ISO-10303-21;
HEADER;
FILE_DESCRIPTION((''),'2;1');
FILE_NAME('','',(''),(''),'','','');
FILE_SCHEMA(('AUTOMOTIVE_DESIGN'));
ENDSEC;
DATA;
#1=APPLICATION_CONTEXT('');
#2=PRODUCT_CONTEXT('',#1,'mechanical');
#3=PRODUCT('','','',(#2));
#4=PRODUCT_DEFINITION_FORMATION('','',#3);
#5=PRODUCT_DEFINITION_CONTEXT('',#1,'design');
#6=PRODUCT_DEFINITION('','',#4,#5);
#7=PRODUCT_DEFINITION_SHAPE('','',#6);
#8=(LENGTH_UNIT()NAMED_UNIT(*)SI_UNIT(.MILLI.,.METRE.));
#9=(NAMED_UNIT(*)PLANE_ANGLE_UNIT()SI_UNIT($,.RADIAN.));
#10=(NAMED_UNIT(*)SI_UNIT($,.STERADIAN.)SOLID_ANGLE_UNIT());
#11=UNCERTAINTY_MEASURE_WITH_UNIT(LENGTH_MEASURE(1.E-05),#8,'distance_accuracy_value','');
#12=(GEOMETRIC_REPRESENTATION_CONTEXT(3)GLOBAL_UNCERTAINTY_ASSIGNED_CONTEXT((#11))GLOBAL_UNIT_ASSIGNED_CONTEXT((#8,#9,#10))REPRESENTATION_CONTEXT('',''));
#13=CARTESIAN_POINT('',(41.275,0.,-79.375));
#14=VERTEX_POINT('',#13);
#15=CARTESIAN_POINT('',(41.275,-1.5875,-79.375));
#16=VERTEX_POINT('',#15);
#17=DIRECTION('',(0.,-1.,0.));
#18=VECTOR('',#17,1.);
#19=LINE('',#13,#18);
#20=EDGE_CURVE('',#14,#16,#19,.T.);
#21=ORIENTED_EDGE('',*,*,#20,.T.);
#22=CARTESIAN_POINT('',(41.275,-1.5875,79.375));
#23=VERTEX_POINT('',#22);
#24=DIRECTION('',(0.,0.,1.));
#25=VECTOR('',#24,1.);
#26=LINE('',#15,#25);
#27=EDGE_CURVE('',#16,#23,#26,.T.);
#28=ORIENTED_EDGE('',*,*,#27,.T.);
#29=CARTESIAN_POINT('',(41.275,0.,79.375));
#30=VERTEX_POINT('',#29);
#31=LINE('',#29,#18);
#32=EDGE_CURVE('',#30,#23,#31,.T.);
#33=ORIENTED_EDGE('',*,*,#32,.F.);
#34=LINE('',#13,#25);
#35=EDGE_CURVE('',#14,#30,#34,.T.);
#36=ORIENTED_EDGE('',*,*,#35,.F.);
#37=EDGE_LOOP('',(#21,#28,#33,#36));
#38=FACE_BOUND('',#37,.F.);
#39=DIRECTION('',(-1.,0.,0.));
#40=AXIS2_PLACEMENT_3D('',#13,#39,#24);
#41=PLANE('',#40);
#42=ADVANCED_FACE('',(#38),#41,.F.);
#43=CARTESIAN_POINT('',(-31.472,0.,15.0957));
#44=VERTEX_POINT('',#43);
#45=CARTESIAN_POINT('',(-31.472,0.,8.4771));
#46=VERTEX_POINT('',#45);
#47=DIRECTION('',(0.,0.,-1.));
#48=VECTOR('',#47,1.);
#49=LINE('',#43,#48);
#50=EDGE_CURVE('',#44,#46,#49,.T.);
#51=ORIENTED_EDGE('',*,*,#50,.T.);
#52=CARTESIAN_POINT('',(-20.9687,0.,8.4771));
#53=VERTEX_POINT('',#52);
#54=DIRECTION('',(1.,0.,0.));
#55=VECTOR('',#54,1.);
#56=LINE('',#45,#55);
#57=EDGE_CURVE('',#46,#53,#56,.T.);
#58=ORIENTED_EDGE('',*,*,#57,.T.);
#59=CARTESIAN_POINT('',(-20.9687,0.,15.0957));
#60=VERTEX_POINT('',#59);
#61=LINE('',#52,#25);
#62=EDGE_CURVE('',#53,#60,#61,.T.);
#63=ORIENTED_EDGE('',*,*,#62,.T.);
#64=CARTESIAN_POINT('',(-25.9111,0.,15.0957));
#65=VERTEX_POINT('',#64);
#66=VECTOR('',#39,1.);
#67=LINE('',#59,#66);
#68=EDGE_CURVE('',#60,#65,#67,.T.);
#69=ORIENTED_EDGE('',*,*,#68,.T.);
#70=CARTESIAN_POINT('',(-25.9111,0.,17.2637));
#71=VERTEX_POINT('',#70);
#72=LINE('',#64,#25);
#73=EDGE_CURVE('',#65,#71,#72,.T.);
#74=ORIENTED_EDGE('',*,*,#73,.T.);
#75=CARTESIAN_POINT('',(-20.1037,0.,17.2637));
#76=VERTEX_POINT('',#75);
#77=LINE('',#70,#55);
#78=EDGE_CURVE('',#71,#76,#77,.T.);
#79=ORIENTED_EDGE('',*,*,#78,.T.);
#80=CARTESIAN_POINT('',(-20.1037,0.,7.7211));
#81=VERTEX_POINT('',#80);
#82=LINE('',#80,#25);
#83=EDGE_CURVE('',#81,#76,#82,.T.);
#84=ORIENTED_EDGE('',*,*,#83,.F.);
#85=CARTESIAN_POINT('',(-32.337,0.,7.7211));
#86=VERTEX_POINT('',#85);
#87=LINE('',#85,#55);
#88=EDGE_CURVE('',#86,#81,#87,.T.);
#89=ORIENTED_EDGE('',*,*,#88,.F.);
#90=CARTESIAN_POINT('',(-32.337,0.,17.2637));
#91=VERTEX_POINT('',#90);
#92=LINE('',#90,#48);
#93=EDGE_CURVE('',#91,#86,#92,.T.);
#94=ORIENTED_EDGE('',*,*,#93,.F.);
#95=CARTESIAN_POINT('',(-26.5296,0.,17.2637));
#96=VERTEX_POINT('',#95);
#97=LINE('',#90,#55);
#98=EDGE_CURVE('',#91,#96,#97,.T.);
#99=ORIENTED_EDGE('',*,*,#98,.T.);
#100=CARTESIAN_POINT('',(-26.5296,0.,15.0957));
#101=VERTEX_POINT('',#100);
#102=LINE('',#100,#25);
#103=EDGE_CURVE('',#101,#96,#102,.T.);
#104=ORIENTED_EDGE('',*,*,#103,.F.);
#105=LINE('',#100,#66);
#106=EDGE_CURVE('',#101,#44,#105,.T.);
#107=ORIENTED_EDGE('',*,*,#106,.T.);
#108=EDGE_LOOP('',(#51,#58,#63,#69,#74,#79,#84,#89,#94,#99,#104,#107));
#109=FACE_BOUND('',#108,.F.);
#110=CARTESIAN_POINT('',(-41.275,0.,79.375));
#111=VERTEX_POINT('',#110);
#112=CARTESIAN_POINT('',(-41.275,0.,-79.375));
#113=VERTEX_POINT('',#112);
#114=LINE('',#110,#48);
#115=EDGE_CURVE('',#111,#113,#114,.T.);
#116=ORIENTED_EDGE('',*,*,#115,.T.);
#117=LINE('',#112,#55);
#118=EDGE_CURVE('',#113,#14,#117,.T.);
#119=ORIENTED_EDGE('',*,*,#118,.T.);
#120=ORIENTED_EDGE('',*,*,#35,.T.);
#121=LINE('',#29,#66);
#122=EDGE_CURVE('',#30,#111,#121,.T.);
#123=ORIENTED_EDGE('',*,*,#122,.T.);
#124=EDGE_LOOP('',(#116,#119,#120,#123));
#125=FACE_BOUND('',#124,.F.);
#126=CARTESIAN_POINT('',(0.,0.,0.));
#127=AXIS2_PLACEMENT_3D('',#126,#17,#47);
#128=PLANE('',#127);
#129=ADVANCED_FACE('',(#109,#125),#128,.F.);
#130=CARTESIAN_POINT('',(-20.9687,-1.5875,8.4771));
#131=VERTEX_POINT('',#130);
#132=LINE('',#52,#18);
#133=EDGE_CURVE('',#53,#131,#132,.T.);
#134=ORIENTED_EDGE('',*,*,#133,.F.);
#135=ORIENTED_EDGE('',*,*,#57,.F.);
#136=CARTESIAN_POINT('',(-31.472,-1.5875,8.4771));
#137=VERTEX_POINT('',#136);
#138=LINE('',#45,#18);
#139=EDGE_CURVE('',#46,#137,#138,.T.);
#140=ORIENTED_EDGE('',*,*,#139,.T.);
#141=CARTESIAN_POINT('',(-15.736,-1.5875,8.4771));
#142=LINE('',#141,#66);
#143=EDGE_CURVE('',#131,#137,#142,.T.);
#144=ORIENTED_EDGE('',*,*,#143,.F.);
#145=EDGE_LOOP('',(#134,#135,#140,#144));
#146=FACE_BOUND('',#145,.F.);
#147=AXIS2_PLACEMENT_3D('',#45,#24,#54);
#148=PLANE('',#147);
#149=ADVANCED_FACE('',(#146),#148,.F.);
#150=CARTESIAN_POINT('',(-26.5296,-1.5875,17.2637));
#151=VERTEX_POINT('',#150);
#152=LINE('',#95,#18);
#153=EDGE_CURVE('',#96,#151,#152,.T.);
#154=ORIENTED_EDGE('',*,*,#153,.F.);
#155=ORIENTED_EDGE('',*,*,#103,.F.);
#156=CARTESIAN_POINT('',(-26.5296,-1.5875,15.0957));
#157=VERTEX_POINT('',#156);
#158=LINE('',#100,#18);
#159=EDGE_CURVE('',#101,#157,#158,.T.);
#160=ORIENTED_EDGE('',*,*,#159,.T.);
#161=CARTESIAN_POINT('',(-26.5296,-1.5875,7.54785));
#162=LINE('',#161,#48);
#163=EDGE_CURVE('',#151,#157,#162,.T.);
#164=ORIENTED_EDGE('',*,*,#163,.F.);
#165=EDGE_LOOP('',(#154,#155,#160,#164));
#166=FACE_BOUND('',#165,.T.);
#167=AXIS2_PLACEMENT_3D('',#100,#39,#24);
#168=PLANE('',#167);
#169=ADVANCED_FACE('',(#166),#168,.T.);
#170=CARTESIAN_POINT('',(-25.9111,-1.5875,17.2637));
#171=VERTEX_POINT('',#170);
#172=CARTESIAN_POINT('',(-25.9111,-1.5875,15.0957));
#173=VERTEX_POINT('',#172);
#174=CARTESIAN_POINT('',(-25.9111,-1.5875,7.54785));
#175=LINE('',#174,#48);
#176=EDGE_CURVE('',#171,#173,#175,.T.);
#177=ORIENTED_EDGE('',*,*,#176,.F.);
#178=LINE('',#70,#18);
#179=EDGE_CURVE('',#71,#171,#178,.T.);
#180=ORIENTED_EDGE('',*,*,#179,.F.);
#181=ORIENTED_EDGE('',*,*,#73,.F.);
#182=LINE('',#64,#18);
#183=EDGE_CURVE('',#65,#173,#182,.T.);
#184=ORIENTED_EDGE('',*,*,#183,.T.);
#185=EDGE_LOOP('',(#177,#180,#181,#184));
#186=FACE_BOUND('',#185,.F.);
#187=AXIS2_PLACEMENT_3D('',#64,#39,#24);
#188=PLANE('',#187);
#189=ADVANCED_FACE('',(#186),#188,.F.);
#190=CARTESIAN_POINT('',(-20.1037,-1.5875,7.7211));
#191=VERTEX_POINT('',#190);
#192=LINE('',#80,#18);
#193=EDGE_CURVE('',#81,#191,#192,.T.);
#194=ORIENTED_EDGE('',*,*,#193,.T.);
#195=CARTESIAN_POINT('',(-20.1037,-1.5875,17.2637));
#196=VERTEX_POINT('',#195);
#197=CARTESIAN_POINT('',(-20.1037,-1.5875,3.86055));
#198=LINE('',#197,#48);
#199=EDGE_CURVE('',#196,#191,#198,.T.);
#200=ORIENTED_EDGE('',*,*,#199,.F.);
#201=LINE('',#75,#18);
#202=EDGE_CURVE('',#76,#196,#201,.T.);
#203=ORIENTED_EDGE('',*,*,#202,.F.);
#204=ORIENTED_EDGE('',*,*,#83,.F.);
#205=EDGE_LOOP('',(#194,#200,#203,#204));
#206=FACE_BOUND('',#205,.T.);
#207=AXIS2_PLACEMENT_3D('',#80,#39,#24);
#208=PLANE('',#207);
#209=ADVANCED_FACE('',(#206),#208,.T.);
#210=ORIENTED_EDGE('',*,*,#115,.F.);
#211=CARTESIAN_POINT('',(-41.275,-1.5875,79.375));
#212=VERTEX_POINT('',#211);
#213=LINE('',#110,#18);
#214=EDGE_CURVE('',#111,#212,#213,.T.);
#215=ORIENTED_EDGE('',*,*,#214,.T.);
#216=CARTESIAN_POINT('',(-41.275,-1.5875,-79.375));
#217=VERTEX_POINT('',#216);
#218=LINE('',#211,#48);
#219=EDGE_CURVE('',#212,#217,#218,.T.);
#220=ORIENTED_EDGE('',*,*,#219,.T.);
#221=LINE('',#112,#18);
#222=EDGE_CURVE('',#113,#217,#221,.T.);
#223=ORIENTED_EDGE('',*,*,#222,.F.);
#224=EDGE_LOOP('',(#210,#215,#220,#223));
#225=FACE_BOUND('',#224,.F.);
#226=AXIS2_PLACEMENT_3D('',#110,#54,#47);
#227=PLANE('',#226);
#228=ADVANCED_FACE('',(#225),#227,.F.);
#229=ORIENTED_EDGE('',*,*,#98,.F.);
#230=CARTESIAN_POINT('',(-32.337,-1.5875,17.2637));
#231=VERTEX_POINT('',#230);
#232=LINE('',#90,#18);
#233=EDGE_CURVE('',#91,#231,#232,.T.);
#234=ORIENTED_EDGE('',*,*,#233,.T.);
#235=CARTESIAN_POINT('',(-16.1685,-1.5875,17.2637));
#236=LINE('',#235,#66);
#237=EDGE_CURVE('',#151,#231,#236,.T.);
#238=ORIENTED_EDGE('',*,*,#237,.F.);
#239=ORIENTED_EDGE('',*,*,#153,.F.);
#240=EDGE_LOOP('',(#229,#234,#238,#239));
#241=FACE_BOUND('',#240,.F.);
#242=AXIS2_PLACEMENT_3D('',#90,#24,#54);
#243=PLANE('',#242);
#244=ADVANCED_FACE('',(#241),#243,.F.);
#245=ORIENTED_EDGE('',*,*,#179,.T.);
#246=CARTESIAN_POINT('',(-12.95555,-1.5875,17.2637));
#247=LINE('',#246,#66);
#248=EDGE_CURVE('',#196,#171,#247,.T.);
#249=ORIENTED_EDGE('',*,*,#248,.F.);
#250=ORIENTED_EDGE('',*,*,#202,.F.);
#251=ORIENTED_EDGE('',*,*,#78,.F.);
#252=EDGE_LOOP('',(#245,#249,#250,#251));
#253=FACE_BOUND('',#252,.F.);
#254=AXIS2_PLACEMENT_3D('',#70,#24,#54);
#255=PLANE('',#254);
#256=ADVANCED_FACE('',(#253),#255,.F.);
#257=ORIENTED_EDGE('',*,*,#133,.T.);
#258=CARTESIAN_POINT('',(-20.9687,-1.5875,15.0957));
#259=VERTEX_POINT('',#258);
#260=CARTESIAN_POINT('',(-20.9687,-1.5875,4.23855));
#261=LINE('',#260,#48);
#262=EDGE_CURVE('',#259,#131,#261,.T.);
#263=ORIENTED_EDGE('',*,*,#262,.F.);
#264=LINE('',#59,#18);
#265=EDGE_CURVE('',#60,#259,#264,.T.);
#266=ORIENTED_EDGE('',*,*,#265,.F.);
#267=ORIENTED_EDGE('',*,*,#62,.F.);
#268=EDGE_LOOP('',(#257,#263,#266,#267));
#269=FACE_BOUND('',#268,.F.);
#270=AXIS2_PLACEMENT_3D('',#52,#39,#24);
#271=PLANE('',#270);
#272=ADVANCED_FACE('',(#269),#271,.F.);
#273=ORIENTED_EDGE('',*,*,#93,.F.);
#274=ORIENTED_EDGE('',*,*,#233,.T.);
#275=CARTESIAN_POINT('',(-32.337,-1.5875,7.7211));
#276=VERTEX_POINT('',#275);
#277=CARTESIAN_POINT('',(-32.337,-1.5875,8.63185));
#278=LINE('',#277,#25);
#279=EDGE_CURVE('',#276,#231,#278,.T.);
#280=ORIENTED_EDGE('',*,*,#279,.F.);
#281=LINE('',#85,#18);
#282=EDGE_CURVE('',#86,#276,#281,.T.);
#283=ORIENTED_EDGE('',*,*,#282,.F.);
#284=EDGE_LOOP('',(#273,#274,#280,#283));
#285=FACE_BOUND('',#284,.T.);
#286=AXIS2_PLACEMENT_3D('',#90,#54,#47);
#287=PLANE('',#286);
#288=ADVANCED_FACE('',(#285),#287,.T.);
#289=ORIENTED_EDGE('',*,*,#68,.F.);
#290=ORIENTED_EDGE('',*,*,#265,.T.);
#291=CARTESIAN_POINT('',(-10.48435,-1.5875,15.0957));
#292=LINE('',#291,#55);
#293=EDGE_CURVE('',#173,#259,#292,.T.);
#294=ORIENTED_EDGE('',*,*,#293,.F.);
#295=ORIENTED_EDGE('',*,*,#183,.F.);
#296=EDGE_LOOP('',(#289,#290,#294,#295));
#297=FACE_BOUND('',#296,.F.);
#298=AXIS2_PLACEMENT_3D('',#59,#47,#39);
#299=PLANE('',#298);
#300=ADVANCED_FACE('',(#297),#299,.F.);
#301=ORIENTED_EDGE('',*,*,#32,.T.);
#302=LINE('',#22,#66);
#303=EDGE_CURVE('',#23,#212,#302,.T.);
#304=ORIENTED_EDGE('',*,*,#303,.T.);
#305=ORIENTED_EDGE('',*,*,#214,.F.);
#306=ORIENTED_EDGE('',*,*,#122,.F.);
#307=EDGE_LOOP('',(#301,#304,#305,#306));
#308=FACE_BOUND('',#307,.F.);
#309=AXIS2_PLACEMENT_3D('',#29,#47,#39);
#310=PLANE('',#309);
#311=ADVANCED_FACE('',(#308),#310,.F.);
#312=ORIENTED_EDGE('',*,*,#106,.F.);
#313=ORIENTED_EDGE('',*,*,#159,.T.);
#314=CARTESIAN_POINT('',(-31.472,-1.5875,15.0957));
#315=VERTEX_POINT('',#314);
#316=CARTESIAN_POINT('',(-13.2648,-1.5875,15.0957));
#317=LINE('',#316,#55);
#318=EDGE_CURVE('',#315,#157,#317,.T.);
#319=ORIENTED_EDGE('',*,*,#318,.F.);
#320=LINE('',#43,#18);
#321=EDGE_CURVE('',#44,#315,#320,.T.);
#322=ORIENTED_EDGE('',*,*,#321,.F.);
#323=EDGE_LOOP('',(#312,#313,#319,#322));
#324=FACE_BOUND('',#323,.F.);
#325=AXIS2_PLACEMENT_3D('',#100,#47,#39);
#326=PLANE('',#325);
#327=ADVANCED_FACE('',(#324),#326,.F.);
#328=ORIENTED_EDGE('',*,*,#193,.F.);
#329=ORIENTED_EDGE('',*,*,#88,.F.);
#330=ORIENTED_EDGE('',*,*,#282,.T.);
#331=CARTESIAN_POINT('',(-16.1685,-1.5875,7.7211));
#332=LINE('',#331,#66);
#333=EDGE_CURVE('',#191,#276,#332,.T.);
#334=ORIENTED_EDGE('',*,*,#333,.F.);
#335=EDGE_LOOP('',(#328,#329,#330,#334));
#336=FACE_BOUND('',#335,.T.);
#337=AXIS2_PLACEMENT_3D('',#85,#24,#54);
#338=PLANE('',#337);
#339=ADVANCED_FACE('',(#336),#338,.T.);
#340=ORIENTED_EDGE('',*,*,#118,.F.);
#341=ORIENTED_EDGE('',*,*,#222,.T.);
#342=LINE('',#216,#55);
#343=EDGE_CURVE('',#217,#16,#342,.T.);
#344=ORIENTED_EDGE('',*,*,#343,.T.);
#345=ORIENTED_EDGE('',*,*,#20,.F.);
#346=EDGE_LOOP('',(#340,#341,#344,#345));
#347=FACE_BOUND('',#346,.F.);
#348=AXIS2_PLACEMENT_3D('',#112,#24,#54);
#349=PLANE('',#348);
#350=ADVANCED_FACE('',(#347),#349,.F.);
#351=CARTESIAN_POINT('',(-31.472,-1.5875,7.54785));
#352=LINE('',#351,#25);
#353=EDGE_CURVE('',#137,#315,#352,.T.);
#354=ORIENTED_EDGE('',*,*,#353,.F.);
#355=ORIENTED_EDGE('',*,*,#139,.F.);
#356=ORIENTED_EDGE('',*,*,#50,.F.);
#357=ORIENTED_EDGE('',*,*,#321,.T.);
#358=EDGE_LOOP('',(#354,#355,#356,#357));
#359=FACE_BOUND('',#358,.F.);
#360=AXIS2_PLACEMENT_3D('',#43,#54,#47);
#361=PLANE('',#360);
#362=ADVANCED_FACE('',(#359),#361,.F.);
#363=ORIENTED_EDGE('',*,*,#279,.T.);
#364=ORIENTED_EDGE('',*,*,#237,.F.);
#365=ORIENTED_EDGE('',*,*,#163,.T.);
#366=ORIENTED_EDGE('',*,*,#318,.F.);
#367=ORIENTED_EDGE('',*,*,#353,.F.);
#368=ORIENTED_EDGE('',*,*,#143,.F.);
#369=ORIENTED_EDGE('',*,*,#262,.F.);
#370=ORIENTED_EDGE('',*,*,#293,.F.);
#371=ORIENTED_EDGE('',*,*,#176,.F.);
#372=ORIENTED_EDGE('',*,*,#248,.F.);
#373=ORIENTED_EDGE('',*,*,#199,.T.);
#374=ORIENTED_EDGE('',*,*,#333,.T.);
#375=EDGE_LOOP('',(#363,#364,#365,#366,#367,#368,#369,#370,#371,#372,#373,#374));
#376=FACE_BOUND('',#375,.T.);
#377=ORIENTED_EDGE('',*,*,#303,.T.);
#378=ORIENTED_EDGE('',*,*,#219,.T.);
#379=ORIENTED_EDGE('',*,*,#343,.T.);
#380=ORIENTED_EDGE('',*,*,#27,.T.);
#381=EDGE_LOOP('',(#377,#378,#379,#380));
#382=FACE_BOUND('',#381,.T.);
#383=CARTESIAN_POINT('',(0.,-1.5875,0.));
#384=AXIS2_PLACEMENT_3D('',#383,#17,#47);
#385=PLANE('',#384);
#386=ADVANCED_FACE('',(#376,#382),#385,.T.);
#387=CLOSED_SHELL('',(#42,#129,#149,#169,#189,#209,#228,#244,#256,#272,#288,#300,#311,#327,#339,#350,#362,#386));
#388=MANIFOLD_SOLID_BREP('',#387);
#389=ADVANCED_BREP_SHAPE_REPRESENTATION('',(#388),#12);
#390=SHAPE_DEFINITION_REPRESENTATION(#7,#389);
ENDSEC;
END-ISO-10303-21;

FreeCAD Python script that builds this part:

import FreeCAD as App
import Part
import Sketcher

V = App.Vector
Q = App.Units.Quantity

doc = App.newDocument("Part")
body = doc.addObject("PartDesign::Body", "Body")

sketch1 = body.newObject("Sketcher::SketchObject", "Sketch")
sketch1.AttachmentSupport = (doc.getObject("XZ_Plane"), [""])
sketch1.MapMode = "FlatFace"
sketch1.addGeometry([
    Part.LineSegment(V(-41, -79, 0), V(41, -79, 0)),
    Part.LineSegment(V(41, -79, 0), V(41, 79, 0)),
    Part.LineSegment(V(41, 79, 0), V(-41, 79, 0)),
    Part.LineSegment(V(-41, 79, 0), V(-41, -79, 0)),
], False)
sketch1.addConstraint([
    Sketcher.Constraint("Coincident", 0, 2, 1, 1),
    Sketcher.Constraint("Coincident", 1, 2, 2, 1),
    Sketcher.Constraint("Coincident", 2, 2, 3, 1),
    Sketcher.Constraint("Coincident", 3, 2, 0, 1),
    Sketcher.Constraint("Horizontal", 0),
    Sketcher.Constraint("Vertical", 1),
    Sketcher.Constraint("Horizontal", 2),
    Sketcher.Constraint("Vertical", 3),
    Sketcher.Constraint("Symmetric", 0, 2, 2, 2, -1, 1),
    Sketcher.Constraint("DistanceX", 0, 1, 0, 2, Q("3.25 in")),
    Sketcher.Constraint("DistanceY", 1, 1, 1, 2, Q("6.25 in")),
])
pad1 = body.newObject("PartDesign::Pad", "Pad")
pad1.Profile = sketch1
pad1.Length = Q("0.0625 in")

sketch2 = body.newObject("Sketcher::SketchObject", "Sketch001")
sketch2.AttachmentSupport = (doc.getObject("XZ_Plane"), [""])
sketch2.MapMode = "FlatFace"
sketch2.addGeometry([
    Part.LineSegment(V(-25.9, 17.3, 0), V(-25.9, 15.1, 0)),
    Part.LineSegment(V(-25.9, 15.1, 0), V(-21, 15.1, 0)),
    Part.LineSegment(V(-21, 15.1, 0), V(-21, 8.5, 0)),
    Part.LineSegment(V(-21, 8.5, 0), V(-31.5, 8.5, 0)),
    Part.LineSegment(V(-31.5, 8.5, 0), V(-31.5, 15.1, 0)),
    Part.LineSegment(V(-31.5, 15.1, 0), V(-26.5, 15.1, 0)),
    Part.LineSegment(V(-26.5, 15.1, 0), V(-26.5, 17.3, 0)),
    Part.LineSegment(V(-26.5, 17.3, 0), V(-32.3, 17.3, 0)),
    Part.LineSegment(V(-32.3, 17.3, 0), V(-32.3, 7.7, 0)),
    Part.LineSegment(V(-32.3, 7.7, 0), V(-20.1, 7.7, 0)),
    Part.LineSegment(V(-20.1, 7.7, 0), V(-20.1, 17.3, 0)),
    Part.LineSegment(V(-20.1, 17.3, 0), V(-25.9, 17.3, 0)),
], False)
sketch2.addConstraint([
    Sketcher.Constraint("Coincident", 0, 2, 1, 1),
    Sketcher.Constraint("Coincident", 1, 2, 2, 1),
    Sketcher.Constraint("Coincident", 2, 2, 3, 1),
    Sketcher.Constraint("Coincident", 3, 2, 4, 1),
    Sketcher.Constraint("Coincident", 4, 2, 5, 1),
    Sketcher.Constraint("Coincident", 5, 2, 6, 1),
    Sketcher.Constraint("Coincident", 6, 2, 7, 1),
    Sketcher.Constraint("Coincident", 7, 2, 8, 1),
    Sketcher.Constraint("Coincident", 8, 2, 9, 1),
    Sketcher.Constraint("Coincident", 9, 2, 10, 1),
    Sketcher.Constraint("Coincident", 10, 2, 11, 1),
    Sketcher.Constraint("Coincident", 11, 2, 0, 1),
    Sketcher.Constraint("Vertical", 0),
    Sketcher.Constraint("Horizontal", 1),
    Sketcher.Constraint("Vertical", 2),
    Sketcher.Constraint("Horizontal", 3),
    Sketcher.Constraint("Vertical", 4),
    Sketcher.Constraint("Horizontal", 5),
    Sketcher.Constraint("Vertical", 6),
    Sketcher.Constraint("Horizontal", 7),
    Sketcher.Constraint("Vertical", 8),
    Sketcher.Constraint("Horizontal", 9),
    Sketcher.Constraint("Vertical", 10),
    Sketcher.Constraint("Horizontal", 11),
    Sketcher.Constraint("Horizontal", 1, 2, 4, 2),
    Sketcher.Constraint("Horizontal", 7, 2, 10, 2),
    Sketcher.Constraint("Equal", 1, 5),
    Sketcher.Constraint("Equal", 7, 11),
    Sketcher.Constraint("DistanceY", 8, 2, 8, 1, Q("0.3757 in")),
    Sketcher.Constraint("DistanceX", 7, 2, 0, 2, Q("0.253 in")),
    Sketcher.Constraint("DistanceX", 1, 1, 1, 2, Q("4.9424 mm")),
    Sketcher.Constraint("DistanceX", 3, 2, 3, 1, Q("10.5033 mm")),
    Sketcher.Constraint("DistanceY", 0, 2, 0, 1, Q("2.168 mm")),
    Sketcher.Constraint("DistanceY", 2, 2, 2, 1, Q("6.6186 mm")),
    Sketcher.Constraint("DistanceX", 7, 2, -1, 1, Q("1.2731 in")),
    Sketcher.Constraint("DistanceY", -1, 1, 0, 2, Q("15.0957 mm")),
])
pocket1 = body.newObject("PartDesign::Pocket", "Pocket")
pocket1.Profile = sketch2
pocket1.Type = "ThroughAll"
pocket1.Reversed = True

doc.recompute()
